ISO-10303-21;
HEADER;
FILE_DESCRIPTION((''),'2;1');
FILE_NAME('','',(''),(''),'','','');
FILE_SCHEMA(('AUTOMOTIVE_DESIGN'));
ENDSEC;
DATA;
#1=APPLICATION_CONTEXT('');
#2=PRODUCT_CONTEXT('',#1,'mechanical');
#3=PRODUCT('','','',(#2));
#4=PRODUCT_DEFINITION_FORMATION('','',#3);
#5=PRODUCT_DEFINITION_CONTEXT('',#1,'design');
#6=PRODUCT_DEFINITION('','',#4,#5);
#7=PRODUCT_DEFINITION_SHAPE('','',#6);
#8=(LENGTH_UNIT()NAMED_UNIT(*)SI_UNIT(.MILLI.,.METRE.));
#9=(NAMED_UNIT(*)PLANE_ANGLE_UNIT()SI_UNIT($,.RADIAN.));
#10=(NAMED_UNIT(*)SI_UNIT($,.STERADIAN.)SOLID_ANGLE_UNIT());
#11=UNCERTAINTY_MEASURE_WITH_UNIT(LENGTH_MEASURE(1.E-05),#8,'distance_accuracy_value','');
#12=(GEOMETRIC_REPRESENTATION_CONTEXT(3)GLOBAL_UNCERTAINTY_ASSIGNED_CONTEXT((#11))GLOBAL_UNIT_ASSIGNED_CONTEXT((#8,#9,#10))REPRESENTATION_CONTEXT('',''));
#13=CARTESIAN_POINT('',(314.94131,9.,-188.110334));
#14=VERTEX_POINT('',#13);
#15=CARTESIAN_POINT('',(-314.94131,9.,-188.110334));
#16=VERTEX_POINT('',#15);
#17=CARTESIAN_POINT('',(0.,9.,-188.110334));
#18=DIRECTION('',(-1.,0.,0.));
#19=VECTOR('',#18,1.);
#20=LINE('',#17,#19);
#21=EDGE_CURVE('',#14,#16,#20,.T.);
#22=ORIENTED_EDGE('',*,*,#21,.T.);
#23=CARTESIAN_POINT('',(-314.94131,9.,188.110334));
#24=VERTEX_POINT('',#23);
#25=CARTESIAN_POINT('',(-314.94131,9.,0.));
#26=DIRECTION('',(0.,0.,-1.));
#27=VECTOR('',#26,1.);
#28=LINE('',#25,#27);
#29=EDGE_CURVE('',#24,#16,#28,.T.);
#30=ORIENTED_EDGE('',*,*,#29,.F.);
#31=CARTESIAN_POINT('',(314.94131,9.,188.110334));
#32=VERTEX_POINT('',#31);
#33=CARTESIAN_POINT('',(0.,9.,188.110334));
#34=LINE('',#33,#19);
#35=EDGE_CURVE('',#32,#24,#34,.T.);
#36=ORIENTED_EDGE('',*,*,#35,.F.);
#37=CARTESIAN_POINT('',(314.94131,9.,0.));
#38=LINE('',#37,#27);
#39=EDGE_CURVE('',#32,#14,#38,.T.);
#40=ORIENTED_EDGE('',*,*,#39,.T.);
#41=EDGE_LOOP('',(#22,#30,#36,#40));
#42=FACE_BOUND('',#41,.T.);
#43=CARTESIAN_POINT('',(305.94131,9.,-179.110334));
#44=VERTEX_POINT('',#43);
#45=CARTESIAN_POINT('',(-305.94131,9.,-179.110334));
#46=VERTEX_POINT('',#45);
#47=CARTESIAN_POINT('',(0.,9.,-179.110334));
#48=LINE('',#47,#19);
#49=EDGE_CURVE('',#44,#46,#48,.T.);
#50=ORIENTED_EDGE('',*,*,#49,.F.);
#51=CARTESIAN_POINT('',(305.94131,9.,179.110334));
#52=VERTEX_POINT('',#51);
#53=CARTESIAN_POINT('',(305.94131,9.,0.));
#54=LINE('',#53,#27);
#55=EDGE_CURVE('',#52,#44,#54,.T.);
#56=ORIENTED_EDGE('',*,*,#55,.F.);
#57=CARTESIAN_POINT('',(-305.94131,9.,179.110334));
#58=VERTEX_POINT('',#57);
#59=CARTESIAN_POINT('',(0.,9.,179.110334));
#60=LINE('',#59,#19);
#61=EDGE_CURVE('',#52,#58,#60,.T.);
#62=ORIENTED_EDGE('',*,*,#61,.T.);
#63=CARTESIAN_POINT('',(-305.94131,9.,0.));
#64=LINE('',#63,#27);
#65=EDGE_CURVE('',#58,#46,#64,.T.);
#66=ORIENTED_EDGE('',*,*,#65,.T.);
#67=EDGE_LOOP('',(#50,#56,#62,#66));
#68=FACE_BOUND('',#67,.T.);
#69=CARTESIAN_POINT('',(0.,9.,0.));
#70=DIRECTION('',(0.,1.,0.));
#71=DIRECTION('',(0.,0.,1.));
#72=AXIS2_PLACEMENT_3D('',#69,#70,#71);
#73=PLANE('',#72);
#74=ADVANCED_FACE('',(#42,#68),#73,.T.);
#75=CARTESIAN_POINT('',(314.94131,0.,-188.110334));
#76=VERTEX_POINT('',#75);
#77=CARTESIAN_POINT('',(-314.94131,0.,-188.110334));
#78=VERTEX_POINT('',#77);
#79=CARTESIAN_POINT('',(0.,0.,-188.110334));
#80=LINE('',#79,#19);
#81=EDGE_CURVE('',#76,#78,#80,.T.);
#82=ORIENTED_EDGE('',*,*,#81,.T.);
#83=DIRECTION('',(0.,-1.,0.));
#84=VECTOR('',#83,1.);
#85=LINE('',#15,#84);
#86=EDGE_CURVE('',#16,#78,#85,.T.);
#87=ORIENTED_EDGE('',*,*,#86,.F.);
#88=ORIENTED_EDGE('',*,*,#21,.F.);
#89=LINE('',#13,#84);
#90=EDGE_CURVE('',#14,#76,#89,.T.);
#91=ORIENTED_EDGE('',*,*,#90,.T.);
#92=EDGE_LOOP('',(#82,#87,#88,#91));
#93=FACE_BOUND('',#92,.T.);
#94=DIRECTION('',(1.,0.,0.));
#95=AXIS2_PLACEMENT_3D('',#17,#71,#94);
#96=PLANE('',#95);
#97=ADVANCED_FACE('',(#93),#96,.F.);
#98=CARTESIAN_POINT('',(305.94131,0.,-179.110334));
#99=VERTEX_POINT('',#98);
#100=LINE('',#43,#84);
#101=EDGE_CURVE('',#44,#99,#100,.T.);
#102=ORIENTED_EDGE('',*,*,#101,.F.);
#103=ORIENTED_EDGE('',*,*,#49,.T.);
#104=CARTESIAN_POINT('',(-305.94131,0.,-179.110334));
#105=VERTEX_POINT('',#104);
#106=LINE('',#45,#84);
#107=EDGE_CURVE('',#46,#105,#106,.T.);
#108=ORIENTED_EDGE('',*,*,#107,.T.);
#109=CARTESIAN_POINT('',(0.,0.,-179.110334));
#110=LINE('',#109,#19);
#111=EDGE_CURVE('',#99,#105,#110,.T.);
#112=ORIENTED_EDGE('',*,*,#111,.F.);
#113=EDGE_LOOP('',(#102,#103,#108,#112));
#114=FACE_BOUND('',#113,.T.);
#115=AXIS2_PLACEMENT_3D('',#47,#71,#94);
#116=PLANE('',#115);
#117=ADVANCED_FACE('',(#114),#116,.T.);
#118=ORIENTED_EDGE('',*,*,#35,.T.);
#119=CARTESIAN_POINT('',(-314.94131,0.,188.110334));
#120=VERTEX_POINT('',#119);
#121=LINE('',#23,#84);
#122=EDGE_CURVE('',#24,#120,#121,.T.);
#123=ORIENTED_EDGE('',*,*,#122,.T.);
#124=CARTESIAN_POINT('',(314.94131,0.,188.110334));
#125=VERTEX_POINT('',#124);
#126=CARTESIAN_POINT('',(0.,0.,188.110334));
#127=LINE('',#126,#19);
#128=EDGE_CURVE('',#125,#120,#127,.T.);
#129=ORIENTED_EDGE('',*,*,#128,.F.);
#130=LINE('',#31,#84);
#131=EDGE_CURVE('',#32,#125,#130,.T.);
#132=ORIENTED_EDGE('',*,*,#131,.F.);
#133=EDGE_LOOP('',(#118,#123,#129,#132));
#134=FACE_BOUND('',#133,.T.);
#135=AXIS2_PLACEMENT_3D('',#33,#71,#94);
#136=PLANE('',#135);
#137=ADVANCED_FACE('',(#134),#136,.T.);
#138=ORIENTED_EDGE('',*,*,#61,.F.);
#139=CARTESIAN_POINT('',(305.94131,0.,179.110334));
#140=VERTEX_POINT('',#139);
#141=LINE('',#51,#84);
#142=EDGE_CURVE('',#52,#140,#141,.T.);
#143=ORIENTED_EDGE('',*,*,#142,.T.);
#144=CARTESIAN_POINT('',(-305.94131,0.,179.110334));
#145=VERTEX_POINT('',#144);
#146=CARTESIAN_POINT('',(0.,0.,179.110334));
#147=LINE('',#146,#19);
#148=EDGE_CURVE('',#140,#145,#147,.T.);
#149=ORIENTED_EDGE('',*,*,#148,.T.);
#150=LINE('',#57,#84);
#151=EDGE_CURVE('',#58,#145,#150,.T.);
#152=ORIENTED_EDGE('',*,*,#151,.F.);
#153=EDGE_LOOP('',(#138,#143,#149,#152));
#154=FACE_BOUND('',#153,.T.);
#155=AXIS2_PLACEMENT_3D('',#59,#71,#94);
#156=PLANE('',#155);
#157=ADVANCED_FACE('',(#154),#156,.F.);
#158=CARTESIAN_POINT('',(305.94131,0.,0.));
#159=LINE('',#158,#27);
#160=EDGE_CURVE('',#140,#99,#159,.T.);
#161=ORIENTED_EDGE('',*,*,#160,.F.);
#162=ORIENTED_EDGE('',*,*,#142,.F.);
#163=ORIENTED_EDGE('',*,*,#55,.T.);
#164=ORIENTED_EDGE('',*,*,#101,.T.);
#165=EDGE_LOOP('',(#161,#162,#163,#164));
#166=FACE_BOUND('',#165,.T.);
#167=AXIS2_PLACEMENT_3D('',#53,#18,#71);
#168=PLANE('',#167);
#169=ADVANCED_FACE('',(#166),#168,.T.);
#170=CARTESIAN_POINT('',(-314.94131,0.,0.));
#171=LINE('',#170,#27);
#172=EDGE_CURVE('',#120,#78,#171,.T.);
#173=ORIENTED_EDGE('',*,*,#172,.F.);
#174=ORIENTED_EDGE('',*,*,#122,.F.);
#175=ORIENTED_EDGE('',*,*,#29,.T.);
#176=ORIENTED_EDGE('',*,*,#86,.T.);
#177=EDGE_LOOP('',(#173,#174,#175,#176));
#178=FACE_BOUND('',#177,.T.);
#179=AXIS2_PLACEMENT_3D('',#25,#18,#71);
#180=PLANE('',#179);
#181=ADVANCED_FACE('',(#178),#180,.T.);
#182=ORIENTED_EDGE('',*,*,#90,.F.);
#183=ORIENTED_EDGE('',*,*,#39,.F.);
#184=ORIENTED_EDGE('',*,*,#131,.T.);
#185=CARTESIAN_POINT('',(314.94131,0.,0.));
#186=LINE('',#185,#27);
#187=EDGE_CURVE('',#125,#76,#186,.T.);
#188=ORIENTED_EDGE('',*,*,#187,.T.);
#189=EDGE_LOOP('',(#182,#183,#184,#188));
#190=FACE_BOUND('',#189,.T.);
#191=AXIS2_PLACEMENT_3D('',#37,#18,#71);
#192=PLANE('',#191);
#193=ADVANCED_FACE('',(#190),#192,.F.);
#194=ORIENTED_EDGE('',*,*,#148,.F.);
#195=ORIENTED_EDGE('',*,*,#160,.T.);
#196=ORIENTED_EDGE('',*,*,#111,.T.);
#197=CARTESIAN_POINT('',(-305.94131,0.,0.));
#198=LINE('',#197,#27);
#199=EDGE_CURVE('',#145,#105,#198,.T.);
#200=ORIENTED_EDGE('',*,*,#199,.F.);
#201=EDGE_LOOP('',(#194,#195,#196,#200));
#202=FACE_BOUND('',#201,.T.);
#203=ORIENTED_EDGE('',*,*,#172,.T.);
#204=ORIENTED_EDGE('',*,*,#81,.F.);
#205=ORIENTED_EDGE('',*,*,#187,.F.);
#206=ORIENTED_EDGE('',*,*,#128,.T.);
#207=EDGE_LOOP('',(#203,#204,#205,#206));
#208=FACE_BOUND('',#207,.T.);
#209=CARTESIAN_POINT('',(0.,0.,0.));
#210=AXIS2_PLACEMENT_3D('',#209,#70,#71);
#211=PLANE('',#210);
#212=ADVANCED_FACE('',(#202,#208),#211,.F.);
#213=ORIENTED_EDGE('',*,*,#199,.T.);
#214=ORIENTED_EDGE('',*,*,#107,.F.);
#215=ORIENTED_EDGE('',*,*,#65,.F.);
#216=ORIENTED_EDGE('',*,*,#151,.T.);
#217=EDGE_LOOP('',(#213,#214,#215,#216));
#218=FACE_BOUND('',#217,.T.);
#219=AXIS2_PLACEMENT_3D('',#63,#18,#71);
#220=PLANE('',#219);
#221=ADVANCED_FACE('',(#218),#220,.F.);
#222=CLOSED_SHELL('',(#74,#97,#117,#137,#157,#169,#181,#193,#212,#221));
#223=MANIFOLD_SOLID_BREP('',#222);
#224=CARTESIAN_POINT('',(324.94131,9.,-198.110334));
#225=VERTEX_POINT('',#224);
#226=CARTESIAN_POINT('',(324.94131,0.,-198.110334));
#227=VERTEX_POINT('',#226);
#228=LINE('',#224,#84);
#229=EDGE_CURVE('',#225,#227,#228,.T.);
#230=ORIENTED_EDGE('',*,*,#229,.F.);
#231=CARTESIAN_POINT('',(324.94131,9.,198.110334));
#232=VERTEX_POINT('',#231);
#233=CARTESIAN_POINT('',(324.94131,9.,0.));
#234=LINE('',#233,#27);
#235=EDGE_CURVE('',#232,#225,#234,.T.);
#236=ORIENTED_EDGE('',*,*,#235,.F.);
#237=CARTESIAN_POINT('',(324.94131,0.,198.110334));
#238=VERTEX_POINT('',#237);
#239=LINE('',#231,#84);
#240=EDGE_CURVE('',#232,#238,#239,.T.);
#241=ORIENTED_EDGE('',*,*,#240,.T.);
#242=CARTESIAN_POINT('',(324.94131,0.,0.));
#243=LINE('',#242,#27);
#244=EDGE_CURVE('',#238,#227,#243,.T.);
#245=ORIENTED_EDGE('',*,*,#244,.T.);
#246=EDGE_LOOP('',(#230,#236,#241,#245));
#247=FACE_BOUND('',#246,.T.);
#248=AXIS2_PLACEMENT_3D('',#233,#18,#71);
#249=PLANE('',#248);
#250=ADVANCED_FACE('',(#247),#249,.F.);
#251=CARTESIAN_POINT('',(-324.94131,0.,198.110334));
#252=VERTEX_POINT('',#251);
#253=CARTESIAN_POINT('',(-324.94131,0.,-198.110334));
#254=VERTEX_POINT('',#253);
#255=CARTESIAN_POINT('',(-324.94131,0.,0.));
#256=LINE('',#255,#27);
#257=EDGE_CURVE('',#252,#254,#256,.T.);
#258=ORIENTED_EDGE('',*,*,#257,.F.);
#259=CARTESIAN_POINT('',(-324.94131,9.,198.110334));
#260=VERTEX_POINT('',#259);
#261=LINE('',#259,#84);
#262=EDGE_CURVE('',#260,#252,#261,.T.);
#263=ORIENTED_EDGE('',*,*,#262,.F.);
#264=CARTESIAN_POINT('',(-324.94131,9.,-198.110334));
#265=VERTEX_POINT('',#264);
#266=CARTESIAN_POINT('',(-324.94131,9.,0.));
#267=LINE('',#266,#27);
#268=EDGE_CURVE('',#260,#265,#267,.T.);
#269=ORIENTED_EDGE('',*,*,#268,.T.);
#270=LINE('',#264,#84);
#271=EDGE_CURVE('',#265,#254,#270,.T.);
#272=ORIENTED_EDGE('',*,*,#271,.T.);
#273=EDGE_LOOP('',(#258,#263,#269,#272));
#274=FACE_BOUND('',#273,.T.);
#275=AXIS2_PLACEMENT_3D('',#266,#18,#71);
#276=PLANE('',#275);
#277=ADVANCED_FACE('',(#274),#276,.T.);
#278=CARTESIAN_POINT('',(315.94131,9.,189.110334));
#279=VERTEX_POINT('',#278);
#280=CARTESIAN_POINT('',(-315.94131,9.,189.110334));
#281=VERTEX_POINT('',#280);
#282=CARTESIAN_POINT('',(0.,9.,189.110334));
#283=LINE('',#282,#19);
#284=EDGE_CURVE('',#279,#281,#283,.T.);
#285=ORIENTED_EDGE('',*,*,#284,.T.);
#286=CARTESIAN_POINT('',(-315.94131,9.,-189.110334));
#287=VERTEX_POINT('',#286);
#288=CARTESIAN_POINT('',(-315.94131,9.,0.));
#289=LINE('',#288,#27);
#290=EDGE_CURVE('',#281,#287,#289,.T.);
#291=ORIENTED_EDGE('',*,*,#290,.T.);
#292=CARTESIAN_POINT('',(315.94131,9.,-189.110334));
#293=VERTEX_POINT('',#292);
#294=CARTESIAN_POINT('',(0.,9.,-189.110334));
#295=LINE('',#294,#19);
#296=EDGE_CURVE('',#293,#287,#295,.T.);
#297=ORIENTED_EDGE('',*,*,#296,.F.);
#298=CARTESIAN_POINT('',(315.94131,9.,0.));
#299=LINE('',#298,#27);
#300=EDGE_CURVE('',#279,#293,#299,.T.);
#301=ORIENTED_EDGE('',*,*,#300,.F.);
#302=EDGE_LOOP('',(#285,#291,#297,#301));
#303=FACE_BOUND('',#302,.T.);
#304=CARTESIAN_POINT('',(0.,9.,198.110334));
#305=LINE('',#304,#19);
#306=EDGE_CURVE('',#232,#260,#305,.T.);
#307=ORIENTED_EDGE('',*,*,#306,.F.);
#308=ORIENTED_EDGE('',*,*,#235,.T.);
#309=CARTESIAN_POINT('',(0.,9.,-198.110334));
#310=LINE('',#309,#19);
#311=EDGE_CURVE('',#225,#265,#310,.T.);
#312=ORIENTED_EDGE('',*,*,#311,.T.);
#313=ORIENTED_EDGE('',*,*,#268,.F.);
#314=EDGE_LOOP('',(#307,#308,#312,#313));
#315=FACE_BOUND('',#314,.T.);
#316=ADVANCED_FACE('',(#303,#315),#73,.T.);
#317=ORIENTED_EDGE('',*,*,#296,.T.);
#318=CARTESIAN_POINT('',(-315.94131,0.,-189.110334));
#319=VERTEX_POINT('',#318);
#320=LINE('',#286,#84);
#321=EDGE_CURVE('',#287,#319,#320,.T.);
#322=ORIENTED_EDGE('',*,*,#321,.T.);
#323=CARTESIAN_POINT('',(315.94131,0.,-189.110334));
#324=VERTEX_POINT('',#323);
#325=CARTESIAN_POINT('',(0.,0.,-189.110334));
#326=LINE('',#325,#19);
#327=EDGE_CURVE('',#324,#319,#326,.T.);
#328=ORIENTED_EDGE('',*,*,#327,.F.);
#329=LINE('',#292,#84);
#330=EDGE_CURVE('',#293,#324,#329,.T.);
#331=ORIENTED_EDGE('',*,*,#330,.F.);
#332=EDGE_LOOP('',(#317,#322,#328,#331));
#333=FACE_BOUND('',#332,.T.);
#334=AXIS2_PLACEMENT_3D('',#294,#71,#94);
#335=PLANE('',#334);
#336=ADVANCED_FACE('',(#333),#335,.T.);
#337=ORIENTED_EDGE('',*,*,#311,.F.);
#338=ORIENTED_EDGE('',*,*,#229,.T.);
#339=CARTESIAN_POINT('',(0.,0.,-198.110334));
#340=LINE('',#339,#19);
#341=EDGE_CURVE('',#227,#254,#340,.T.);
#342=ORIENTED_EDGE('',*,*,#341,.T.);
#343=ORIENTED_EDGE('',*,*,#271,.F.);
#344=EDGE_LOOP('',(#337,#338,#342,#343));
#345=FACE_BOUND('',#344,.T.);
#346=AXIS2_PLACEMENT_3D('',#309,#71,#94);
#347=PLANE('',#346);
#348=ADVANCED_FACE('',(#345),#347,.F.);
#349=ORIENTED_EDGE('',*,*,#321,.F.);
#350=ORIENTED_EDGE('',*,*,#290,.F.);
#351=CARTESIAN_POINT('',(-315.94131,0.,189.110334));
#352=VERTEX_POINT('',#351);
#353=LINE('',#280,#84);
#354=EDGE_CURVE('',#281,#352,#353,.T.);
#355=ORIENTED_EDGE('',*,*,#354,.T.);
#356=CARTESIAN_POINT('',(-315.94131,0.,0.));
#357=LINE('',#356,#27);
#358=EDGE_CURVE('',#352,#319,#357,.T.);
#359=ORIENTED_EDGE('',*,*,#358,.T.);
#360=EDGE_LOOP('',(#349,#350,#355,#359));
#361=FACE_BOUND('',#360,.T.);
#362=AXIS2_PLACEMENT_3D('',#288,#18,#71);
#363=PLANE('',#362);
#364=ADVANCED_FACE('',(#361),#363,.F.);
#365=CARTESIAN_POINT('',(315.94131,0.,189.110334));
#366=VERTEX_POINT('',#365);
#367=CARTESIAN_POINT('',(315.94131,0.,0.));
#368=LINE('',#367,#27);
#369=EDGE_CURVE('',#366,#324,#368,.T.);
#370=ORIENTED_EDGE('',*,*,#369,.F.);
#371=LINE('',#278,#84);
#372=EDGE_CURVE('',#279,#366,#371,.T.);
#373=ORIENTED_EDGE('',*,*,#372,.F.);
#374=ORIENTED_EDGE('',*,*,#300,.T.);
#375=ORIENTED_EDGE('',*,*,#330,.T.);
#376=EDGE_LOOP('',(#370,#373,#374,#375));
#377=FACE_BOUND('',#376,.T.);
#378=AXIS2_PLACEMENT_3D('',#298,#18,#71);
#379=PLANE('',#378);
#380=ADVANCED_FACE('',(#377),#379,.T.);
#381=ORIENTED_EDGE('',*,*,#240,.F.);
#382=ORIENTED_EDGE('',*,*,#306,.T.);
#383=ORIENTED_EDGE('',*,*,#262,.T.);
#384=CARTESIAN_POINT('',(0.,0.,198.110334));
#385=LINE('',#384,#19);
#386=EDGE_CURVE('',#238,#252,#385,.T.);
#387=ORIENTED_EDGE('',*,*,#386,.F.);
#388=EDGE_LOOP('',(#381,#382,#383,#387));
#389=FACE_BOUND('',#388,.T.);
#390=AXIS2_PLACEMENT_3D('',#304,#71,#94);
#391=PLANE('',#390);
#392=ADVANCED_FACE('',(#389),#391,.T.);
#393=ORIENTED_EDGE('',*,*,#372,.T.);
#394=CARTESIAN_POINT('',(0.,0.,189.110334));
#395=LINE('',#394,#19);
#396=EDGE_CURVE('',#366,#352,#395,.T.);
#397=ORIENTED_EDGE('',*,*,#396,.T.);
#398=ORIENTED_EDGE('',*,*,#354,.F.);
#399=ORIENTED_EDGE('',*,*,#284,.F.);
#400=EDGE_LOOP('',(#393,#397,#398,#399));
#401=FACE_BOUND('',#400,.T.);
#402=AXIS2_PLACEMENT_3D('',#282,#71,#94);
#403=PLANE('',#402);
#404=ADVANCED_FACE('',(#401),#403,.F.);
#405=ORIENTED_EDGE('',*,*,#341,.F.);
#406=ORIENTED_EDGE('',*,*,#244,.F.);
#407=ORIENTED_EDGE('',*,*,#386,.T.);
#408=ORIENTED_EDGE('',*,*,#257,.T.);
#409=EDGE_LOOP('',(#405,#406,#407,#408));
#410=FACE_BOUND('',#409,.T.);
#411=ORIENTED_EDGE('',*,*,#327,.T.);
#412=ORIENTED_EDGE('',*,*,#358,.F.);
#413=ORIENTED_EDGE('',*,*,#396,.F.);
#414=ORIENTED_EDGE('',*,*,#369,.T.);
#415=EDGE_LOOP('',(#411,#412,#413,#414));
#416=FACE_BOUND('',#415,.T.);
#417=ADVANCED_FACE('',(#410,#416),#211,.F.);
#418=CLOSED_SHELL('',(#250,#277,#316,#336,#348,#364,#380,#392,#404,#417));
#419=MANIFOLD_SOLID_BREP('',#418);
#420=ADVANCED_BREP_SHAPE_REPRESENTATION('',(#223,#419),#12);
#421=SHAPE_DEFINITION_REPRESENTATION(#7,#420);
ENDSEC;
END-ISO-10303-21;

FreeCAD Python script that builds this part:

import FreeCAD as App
import Part
import Sketcher
Q = App.Units.Quantity

doc = App.newDocument("Part")
body = doc.addObject("PartDesign::Body", "Body")

sketch1 = body.newObject("Sketcher::SketchObject", "Sketch")
sketch1.AttachmentSupport = (doc.getObject("XZ_Plane"), [""])
sketch1.MapMode = "FlatFace"
sketch1.addGeometry(Part.LineSegment(App.Vector(-315, -188, 0), App.Vector(-315, 188, 0)), False)
sketch1.addGeometry(Part.LineSegment(App.Vector(-315, 188, 0), App.Vector(315, 188, 0)), False)
sketch1.addGeometry(Part.LineSegment(App.Vector(315, 188, 0), App.Vector(315, -188, 0)), False)
sketch1.addGeometry(Part.LineSegment(App.Vector(315, -188, 0), App.Vector(-315, -188, 0)), False)
sketch1.addGeometry(Part.LineSegment(App.Vector(306, 179, 0), App.Vector(-306, 179, 0)), False)
sketch1.addGeometry(Part.LineSegment(App.Vector(-306, 179, 0), App.Vector(-306, -179, 0)), False)
sketch1.addGeometry(Part.LineSegment(App.Vector(-306, -179, 0), App.Vector(306, -179, 0)), False)
sketch1.addGeometry(Part.LineSegment(App.Vector(306, -179, 0), App.Vector(306, 179, 0)), False)
sketch1.addConstraint(Sketcher.Constraint("Coincident", 0, 2, 1, 1))
sketch1.addConstraint(Sketcher.Constraint("Coincident", 1, 2, 2, 1))
sketch1.addConstraint(Sketcher.Constraint("Coincident", 2, 2, 3, 1))
sketch1.addConstraint(Sketcher.Constraint("Coincident", 3, 2, 0, 1))
sketch1.addConstraint(Sketcher.Constraint("Coincident", 4, 2, 5, 1))
sketch1.addConstraint(Sketcher.Constraint("Coincident", 5, 2, 6, 1))
sketch1.addConstraint(Sketcher.Constraint("Coincident", 6, 2, 7, 1))
sketch1.addConstraint(Sketcher.Constraint("Coincident", 7, 2, 4, 1))
sketch1.addConstraint(Sketcher.Constraint("Vertical", 0))
sketch1.addConstraint(Sketcher.Constraint("Horizontal", 1))
sketch1.addConstraint(Sketcher.Constraint("Vertical", 2))
sketch1.addConstraint(Sketcher.Constraint("Horizontal", 3))
sketch1.addConstraint(Sketcher.Constraint("Horizontal", 4))
sketch1.addConstraint(Sketcher.Constraint("Vertical", 5))
sketch1.addConstraint(Sketcher.Constraint("Horizontal", 6))
sketch1.addConstraint(Sketcher.Constraint("Vertical", 7))
sketch1.addConstraint(Sketcher.Constraint("Symmetric", 0, 2, 2, 2, -1, 1))
sketch1.addConstraint(Sketcher.Constraint("Symmetric", 4, 2, 6, 2, -1, 1))
sketch1.addConstraint(Sketcher.Constraint("DistanceX", 0, 2, 4, 2, Q("9 mm")))
sketch1.addConstraint(Sketcher.Constraint("DistanceY", 4, 2, 0, 2, Q("9 mm")))
sketch1.addConstraint(Sketcher.Constraint("DistanceX", 1, 1, 1, 2, Q("629.882621 mm")))
sketch1.addConstraint(Sketcher.Constraint("DistanceY", 0, 1, 0, 2, Q("376.220668 mm")))
pad1 = body.newObject("PartDesign::Pad", "Pad")
pad1.Profile = sketch1
pad1.Length = 9
pad1.Reversed = True
body2 = doc.addObject("PartDesign::Body", "Body001")

sketch2 = body2.newObject("Sketcher::SketchObject", "Sketch001")
sketch2.AttachmentSupport = (doc.getObject("XZ_Plane001"), [""])
sketch2.MapMode = "FlatFace"
sketch2.addGeometry(Part.LineSegment(App.Vector(-325, -198, 0), App.Vector(-325, 198, 0)), False)
sketch2.addGeometry(Part.LineSegment(App.Vector(-325, 198, 0), App.Vector(325, 198, 0)), False)
sketch2.addGeometry(Part.LineSegment(App.Vector(325, 198, 0), App.Vector(325, -198, 0)), False)
sketch2.addGeometry(Part.LineSegment(App.Vector(325, -198, 0), App.Vector(-325, -198, 0)), False)
sketch2.addGeometry(Part.LineSegment(App.Vector(316, 189, 0), App.Vector(-316, 189, 0)), False)
sketch2.addGeometry(Part.LineSegment(App.Vector(-316, 189, 0), App.Vector(-316, -189, 0)), False)
sketch2.addGeometry(Part.LineSegment(App.Vector(-316, -189, 0), App.Vector(316, -189, 0)), False)
sketch2.addGeometry(Part.LineSegment(App.Vector(316, -189, 0), App.Vector(316, 189, 0)), False)
sketch2.addConstraint(Sketcher.Constraint("Coincident", 0, 2, 1, 1))
sketch2.addConstraint(Sketcher.Constraint("Coincident", 1, 2, 2, 1))
sketch2.addConstraint(Sketcher.Constraint("Coincident", 2, 2, 3, 1))
sketch2.addConstraint(Sketcher.Constraint("Coincident", 3, 2, 0, 1))
sketch2.addConstraint(Sketcher.Constraint("Coincident", 4, 2, 5, 1))
sketch2.addConstraint(Sketcher.Constraint("Coincident", 5, 2, 6, 1))
sketch2.addConstraint(Sketcher.Constraint("Coincident", 6, 2, 7, 1))
sketch2.addConstraint(Sketcher.Constraint("Coincident", 7, 2, 4, 1))
sketch2.addConstraint(Sketcher.Constraint("Vertical", 0))
sketch2.addConstraint(Sketcher.Constraint("Horizontal", 1))
sketch2.addConstraint(Sketcher.Constraint("Vertical", 2))
sketch2.addConstraint(Sketcher.Constraint("Horizontal", 3))
sketch2.addConstraint(Sketcher.Constraint("Horizontal", 4))
sketch2.addConstraint(Sketcher.Constraint("Vertical", 5))
sketch2.addConstraint(Sketcher.Constraint("Horizontal", 6))
sketch2.addConstraint(Sketcher.Constraint("Vertical", 7))
sketch2.addConstraint(Sketcher.Constraint("Symmetric", 0, 2, 2, 2, -1, 1))
sketch2.addConstraint(Sketcher.Constraint("Symmetric", 4, 2, 6, 2, -1, 1))
sketch2.addConstraint(Sketcher.Constraint("DistanceX", 0, 2, 4, 2, Q("9 mm")))
sketch2.addConstraint(Sketcher.Constraint("DistanceY", 4, 2, 0, 2, Q("9 mm")))
sketch2.addConstraint(Sketcher.Constraint("DistanceX", 1, 1, 1, 2, Q("649.882621 mm")))
sketch2.addConstraint(Sketcher.Constraint("DistanceY", 0, 1, 0, 2, Q("396.220668 mm")))
pad2 = body2.newObject("PartDesign::Pad", "Pad001")
pad2.Profile = sketch2
pad2.Length = 9
pad2.Reversed = True

doc.recompute()
